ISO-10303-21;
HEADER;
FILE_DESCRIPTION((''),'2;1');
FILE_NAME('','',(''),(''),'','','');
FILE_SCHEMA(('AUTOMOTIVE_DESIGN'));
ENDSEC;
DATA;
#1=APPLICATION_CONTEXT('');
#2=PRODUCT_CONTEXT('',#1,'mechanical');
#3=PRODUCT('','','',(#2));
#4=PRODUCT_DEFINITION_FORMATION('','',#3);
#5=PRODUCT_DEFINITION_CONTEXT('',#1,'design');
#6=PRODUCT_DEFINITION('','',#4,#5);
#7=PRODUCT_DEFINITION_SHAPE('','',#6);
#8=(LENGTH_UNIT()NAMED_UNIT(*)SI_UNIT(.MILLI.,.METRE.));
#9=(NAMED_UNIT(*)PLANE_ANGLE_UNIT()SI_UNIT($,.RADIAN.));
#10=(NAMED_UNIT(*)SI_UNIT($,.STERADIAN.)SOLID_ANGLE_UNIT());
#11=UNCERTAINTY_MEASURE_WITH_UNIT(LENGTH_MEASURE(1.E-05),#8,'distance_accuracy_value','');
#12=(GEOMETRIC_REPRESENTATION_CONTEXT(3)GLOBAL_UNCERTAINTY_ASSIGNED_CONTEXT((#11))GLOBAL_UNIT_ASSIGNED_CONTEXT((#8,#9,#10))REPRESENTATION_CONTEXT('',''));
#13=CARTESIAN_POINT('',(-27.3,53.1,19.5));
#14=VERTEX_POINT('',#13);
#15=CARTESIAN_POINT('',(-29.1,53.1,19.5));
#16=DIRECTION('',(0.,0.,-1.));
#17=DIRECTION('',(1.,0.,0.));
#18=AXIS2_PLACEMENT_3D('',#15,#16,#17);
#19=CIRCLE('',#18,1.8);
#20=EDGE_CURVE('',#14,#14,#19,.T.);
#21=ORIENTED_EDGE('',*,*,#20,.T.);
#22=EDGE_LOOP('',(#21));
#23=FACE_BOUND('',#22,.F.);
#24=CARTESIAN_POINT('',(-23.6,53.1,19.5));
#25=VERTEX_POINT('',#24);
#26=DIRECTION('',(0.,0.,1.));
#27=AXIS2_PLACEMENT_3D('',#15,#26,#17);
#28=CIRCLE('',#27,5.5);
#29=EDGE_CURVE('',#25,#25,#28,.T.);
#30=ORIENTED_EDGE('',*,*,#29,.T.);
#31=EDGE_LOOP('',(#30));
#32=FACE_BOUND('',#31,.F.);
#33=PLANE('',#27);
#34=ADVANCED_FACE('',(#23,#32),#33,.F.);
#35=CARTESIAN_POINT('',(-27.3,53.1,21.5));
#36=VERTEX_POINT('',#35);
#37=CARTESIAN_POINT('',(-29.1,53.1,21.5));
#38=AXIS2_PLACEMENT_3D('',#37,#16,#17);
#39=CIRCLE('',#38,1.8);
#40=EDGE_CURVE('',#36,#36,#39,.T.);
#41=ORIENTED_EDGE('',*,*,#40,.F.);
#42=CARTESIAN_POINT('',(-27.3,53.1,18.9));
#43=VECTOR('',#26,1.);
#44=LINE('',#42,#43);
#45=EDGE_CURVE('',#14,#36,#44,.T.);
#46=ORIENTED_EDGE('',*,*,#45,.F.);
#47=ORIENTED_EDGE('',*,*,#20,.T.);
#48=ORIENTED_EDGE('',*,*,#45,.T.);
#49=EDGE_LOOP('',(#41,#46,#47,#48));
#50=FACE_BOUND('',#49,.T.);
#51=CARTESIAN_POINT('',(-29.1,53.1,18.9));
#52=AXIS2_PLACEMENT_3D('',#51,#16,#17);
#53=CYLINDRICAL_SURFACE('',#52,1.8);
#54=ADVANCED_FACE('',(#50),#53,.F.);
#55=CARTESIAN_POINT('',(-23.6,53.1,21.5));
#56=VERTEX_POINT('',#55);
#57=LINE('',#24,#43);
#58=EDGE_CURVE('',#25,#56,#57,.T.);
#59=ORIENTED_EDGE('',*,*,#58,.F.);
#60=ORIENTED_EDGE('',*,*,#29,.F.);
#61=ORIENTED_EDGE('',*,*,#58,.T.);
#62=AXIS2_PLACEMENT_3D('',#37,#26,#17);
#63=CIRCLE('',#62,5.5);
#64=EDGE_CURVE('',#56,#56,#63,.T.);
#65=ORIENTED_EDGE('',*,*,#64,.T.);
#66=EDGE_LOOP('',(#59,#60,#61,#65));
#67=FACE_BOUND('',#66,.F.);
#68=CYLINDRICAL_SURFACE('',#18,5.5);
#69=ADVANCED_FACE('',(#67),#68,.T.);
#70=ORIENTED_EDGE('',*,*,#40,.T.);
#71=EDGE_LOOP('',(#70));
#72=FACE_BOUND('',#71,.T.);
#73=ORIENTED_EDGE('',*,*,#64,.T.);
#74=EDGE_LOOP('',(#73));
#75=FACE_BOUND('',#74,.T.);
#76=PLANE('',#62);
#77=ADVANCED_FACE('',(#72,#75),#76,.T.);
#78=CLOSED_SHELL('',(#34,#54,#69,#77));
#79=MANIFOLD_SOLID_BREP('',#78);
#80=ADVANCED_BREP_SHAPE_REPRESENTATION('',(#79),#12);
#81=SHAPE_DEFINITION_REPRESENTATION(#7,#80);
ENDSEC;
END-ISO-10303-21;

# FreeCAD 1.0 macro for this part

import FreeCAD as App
import Part
import Sketcher

V = App.Vector
Q = App.Units.Quantity

doc = App.newDocument("Part")
body = doc.addObject("PartDesign::Body", "Body")

# Sketch on XY plane
sketch1 = doc.addObject("Sketcher::SketchObject", "Sketch")
body.addObject(sketch1)
sketch1.AttachmentSupport = (doc.XY_Plane, [""])
sketch1.MapMode = "FlatFace"
sketch1.AttachmentOffset = App.Placement(V(0, 0, 24.6), App.Rotation())
sketch1.addGeometry(Part.Circle(V(-29.1, 53.1, 0), V(0, 0, 1), 1.8), False)
sketch1.addConstraint([
    Sketcher.Constraint("Diameter", 0, Q("3.6 mm")),
    Sketcher.Constraint("DistanceX", 0, 3, -1, 1, Q("29.1 mm")),
    Sketcher.Constraint("DistanceY", -1, 1, 0, 3, Q("53.1 mm")),
])
pad1 = doc.addObject("PartDesign::Pad", "Pad")
body.addObject(pad1)
pad1.Profile = sketch1
pad1.Length = 5
body2 = doc.addObject("PartDesign::Body", "Body001")

# Sketch on XY plane
sketch2 = doc.addObject("Sketcher::SketchObject", "Sketch001")
body2.addObject(sketch2)
sketch2.AttachmentSupport = (doc.getObject("XY_Plane001"), [""])
sketch2.MapMode = "FlatFace"
sketch2.AttachmentOffset = App.Placement(V(0, 0, 25.2), App.Rotation())
sketch2.addGeometry(Part.Circle(V(-29, 53, 0), V(0, 0, 1), 6), False)
sketch2.addConstraint([
    Sketcher.Constraint("Diameter", 0, Q("11 mm")),
    Sketcher.Constraint("DistanceX", 0, 3, -1, 1, Q("29.1 mm")),
    Sketcher.Constraint("DistanceY", -1, 1, 0, 3, Q("53.1 mm")),
])
pad2 = doc.addObject("PartDesign::Pad", "Pad001")
body2.addObject(pad2)
pad2.Profile = sketch2
pad2.Length = 2
doc.recompute()

boolean = doc.addObject("PartDesign::Boolean", "Boolean")
body2.addObject(boolean)
boolean.Type = "Cut"
boolean.addObjects([body])
body3 = doc.addObject("PartDesign::Body", "Body002")
doc.recompute()

body2.Placement = App.Placement(V(0, 0, -5.7), App.Rotation(V(0, 0, 1), 0))
boolean2 = doc.addObject("PartDesign::Boolean", "Boolean001")
body3.addObject(boolean2)
boolean2.Type = "Fuse"
boolean2.addObjects([body2])

doc.recompute()
